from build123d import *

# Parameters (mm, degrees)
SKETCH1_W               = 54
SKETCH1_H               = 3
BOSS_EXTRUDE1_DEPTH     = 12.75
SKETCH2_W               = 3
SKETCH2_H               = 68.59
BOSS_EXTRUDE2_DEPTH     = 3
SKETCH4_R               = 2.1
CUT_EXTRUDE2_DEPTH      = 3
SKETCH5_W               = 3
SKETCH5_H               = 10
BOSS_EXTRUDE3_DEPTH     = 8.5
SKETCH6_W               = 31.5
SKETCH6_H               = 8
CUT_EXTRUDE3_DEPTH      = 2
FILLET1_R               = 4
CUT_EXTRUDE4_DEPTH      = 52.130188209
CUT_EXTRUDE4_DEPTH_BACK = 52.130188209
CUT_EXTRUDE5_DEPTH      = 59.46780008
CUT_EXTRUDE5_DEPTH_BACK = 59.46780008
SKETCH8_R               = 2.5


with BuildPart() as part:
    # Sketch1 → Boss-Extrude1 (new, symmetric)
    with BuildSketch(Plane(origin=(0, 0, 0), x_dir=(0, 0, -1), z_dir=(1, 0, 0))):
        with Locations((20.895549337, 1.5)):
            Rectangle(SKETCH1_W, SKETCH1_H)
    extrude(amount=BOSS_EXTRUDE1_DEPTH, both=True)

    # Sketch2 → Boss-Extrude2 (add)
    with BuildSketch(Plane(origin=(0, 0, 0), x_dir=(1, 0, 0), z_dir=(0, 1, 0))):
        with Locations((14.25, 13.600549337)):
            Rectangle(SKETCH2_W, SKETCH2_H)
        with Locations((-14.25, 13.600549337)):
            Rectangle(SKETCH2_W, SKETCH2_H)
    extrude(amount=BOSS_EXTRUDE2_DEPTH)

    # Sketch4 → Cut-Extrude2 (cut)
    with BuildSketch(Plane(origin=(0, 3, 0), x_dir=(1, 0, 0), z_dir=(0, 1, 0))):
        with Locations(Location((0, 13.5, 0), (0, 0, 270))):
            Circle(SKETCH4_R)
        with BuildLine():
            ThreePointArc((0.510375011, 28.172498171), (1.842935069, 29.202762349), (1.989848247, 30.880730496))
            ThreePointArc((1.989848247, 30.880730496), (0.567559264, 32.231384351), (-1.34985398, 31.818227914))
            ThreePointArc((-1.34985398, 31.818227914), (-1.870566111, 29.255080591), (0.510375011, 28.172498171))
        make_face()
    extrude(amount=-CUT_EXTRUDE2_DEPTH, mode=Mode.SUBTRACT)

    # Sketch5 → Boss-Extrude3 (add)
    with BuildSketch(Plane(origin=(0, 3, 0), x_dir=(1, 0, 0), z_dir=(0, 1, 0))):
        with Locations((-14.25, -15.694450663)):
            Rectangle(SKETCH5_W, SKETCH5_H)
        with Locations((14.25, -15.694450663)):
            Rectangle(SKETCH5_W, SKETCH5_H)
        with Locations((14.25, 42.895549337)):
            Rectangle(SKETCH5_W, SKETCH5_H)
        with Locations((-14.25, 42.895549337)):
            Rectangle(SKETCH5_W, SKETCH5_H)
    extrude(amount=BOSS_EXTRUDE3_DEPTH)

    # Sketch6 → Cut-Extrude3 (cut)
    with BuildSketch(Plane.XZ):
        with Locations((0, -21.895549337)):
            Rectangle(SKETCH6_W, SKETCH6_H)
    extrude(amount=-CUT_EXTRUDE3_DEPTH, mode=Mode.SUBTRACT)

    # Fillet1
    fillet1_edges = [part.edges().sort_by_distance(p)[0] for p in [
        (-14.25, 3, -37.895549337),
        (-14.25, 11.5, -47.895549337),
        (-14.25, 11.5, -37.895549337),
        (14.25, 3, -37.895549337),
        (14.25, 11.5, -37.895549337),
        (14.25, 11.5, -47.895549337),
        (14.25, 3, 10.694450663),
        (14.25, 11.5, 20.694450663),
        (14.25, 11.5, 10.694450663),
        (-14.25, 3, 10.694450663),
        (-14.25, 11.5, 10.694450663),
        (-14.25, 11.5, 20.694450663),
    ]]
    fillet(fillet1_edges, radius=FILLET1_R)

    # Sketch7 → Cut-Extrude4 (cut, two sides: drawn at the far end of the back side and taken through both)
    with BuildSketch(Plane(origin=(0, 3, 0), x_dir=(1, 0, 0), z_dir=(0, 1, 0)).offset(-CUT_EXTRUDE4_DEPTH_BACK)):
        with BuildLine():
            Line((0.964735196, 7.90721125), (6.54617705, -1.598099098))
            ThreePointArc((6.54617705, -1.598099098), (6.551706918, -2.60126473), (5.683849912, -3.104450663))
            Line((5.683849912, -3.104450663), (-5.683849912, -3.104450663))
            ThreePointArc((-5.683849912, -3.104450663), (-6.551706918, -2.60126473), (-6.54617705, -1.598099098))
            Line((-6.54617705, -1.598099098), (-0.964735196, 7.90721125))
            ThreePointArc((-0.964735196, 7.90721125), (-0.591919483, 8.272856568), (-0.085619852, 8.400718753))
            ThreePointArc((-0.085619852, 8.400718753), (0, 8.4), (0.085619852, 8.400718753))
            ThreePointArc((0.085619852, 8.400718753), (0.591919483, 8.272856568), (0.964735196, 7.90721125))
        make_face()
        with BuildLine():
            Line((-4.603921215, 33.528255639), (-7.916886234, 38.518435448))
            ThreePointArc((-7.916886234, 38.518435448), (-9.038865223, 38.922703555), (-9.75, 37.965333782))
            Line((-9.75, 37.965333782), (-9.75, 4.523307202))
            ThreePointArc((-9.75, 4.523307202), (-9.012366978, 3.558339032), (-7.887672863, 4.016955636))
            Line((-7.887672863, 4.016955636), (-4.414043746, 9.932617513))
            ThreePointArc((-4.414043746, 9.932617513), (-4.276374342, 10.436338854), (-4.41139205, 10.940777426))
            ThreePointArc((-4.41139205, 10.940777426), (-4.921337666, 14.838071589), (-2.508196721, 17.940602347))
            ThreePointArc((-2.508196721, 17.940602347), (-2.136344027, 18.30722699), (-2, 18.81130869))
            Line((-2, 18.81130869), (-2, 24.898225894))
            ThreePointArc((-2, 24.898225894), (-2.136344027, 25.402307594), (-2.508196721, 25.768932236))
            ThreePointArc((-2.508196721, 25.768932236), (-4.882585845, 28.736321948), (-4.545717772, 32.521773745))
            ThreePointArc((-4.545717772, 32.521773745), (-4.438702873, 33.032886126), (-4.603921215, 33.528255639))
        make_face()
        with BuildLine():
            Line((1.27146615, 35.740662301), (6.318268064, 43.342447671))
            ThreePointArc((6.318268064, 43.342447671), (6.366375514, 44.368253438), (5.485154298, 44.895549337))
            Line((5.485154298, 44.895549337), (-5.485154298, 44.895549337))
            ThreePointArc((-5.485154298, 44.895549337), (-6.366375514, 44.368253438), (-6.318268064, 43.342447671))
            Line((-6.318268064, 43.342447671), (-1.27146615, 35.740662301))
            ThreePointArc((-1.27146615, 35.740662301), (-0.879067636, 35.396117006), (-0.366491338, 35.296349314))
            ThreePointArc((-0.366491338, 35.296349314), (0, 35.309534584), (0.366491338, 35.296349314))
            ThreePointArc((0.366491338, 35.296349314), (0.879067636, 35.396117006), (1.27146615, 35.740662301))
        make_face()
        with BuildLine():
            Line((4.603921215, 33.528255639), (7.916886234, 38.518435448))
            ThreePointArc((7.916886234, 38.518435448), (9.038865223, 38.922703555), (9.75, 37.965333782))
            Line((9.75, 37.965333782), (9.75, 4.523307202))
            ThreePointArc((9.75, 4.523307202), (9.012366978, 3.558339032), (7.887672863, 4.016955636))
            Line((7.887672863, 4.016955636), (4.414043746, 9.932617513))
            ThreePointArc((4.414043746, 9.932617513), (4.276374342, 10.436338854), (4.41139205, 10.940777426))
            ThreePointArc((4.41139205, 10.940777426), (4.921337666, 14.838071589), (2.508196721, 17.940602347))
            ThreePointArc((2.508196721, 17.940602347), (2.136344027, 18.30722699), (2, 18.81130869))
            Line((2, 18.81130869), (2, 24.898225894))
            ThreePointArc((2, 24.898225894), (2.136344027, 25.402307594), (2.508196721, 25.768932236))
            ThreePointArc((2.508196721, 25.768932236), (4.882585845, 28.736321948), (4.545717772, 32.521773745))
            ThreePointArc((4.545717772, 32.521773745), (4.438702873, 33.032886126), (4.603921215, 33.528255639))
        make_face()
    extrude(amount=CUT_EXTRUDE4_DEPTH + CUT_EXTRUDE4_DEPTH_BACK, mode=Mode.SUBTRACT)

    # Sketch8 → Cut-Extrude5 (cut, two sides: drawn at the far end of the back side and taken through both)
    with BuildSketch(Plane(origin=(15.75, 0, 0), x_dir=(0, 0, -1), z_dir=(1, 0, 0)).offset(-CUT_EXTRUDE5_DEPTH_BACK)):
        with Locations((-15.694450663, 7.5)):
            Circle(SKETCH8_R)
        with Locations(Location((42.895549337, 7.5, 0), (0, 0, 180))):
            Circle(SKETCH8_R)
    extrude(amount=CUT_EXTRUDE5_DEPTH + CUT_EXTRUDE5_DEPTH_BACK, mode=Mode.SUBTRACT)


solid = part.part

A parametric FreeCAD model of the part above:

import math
import FreeCAD as App
import Part
import Sketcher

V = App.Vector


def edges_at(feature, points):
    """Names of the edges that pass closest to the given points."""
    edges = feature.Shape.Edges
    near = lambda p: min(range(len(edges)), key=lambda i: edges[i].distToShape(Part.Vertex(*p))[0])
    return sorted({f"Edge{near(p) + 1}" for p in points})


def add_polygon(sketch, points):
    """Adds a closed chain of lines whose ends are joined by coincident constraints."""
    first, n = sketch.GeometryCount, len(points)
    for a, b in zip(points, points[1:] + points[:1]):
        sketch.addGeometry(Part.LineSegment(App.Vector(*a, 0), App.Vector(*b, 0)), False)
    for i in range(n):
        sketch.addConstraint(Sketcher.Constraint("Coincident", first + i, 2, first + (i + 1) % n, 1))

doc = App.newDocument("Part")
body = doc.addObject("PartDesign::Body", "Body")

sketch1 = body.newObject("Sketcher::SketchObject", "Sketch")
sketch1.AttachmentSupport = (doc.getObject("YZ_Plane"), [""])
sketch1.MapMode = "FlatFace"
add_polygon(sketch1, [(3, 6.104451), (0, 6.104451), (0, -47.895549), (3, -47.895549)])
sketch1.addConstraint([
    Sketcher.Constraint("Horizontal", 0),
    Sketcher.Constraint("Vertical", 1),
    Sketcher.Constraint("Horizontal", 2),
    Sketcher.Constraint("Vertical", 3),
    Sketcher.Constraint("PointOnObject", 0, 2, -2),
    Sketcher.Constraint("DistanceX", 0, 2, 0, 1, 3.0),
    Sketcher.Constraint("DistanceY", 1, 2, 1, 1, 54.0),
    Sketcher.Constraint("DistanceY", -1, 1, 0, 2, 6.104451),
])
pad1 = body.newObject("PartDesign::Pad", "Pad")
pad1.Profile = sketch1
pad1.Length = 25.5
pad1.Midplane = True

sketch2 = body.newObject("Sketcher::SketchObject", "Sketch001")
sketch2.AttachmentSupport = (doc.getObject("XZ_Plane"), [""])
sketch2.MapMode = "FlatFace"
add_polygon(sketch2, [(12.75, -47.895549), (12.75, 20.694451), (15.75, 20.694451), (15.75, -47.895549)])
add_polygon(sketch2, [(-15.75, -47.895549), (-15.75, 20.694451), (-12.75, 20.694451), (-12.75, -47.895549)])
sketch2.addConstraint([
    Sketcher.Constraint("Vertical", 0),
    Sketcher.Constraint("Horizontal", 1),
    Sketcher.Constraint("Vertical", 2),
    Sketcher.Constraint("Horizontal", 3),
    Sketcher.Constraint("Vertical", 4),
    Sketcher.Constraint("Horizontal", 5),
    Sketcher.Constraint("Vertical", 6),
    Sketcher.Constraint("Horizontal", 7),
    Sketcher.Constraint("Symmetric", 1, 2, 4, 2, -2),
    Sketcher.Constraint("Symmetric", 3, 2, 6, 2, -2),
    Sketcher.Constraint("DistanceX", 1, 1, 1, 2, 3.0),
    Sketcher.Constraint("DistanceY", 0, 1, 0, 2, 68.59),
    Sketcher.Constraint("DistanceX", 4, 2, 0, 2, 28.5),
    Sketcher.Constraint("DistanceY", -1, 1, 0, 2, 20.694451),
])
pad2 = body.newObject("PartDesign::Pad", "Pad001")
pad2.Profile = sketch2
pad2.Length = 3
pad2.Reversed = True

sketch3 = body.newObject("Sketcher::SketchObject", "Sketch002")
sketch3.AttachmentSupport = (doc.getObject("XZ_Plane"), [""])
sketch3.MapMode = "FlatFace"
sketch3.AttachmentOffset = App.Placement(V(0, 0, -3), App.Rotation())
sketch3.addGeometry([
    Part.Circle(V(0, -13.5, 0), V(0, 0, 1), 2.1),
    Part.ArcOfCircle(Part.Circle(V(0, -30.209535, 0), V(0, 0, 1), 2.1), math.radians(-18.63977), math.radians(75.93422)),
    Part.ArcOfCircle(Part.Circle(V(0, -30.209535, 0), V(0, 0, 1), 2.1), math.radians(-130), math.radians(-18.63977)),
    Part.ArcOfCircle(Part.Circle(V(0, -30.209535, 0), V(0, 0, 1), 2.1), math.radians(75.934219), math.radians(230)),
], False)
sketch3.addConstraint([
    Sketcher.Constraint("Tangent", 1, 1, 2, 2),
    Sketcher.Constraint("Tangent", 2, 1, 3, 2),
    Sketcher.Constraint("Tangent", 3, 1, 1, 2),
    Sketcher.Constraint("Equal", 0, 1),
    Sketcher.Constraint("PointOnObject", 0, 3, -2),
    Sketcher.Constraint("PointOnObject", 1, 3, -2),
    Sketcher.Constraint("Diameter", 0, 4.2),
    Sketcher.Constraint("DistanceY", 0, 3, -1, 1, 13.5),
    Sketcher.Constraint("DistanceY", 3, 1, -1, 1, 28.172498),
    Sketcher.Constraint("DistanceX", -1, 1, 1, 1, 1.989848),
    Sketcher.Constraint("DistanceY", 1, 1, -1, 1, 30.88073),
    Sketcher.Constraint("DistanceX", 2, 1, 3, 1, 1.860229),
])
pocket1 = body.newObject("PartDesign::Pocket", "Pocket")
pocket1.Profile = sketch3
pocket1.Length = 3
pocket1.Reversed = True

sketch4 = body.newObject("Sketcher::SketchObject", "Sketch003")
sketch4.AttachmentSupport = (doc.getObject("XZ_Plane"), [""])
sketch4.MapMode = "FlatFace"
sketch4.AttachmentOffset = App.Placement(V(0, 0, -3), App.Rotation())
add_polygon(sketch4, [(-15.75, 10.694451), (-15.75, 20.694451), (-12.75, 20.694451), (-12.75, 10.694451)])
add_polygon(sketch4, [(12.75, 10.694451), (12.75, 20.694451), (15.75, 20.694451), (15.75, 10.694451)])
add_polygon(sketch4, [(12.75, -47.895549), (12.75, -37.895549), (15.75, -37.895549), (15.75, -47.895549)])
add_polygon(sketch4, [(-15.75, -47.895549), (-15.75, -37.895549), (-12.75, -37.895549), (-12.75, -47.895549)])
sketch4.addConstraint([
    Sketcher.Constraint("Vertical", 0),
    Sketcher.Constraint("Horizontal", 1),
    Sketcher.Constraint("Vertical", 2),
    Sketcher.Constraint("Horizontal", 3),
    Sketcher.Constraint("Vertical", 4),
    Sketcher.Constraint("Horizontal", 5),
    Sketcher.Constraint("Vertical", 6),
    Sketcher.Constraint("Horizontal", 7),
    Sketcher.Constraint("Vertical", 8),
    Sketcher.Constraint("Horizontal", 9),
    Sketcher.Constraint("Vertical", 10),
    Sketcher.Constraint("Horizontal", 11),
    Sketcher.Constraint("Vertical", 12),
    Sketcher.Constraint("Horizontal", 13),
    Sketcher.Constraint("Vertical", 14),
    Sketcher.Constraint("Horizontal", 15),
    Sketcher.Constraint("Symmetric", 1, 2, 4, 2, -2),
    Sketcher.Constraint("Symmetric", 3, 2, 6, 2, -2),
    Sketcher.Constraint("Symmetric", 9, 2, 12, 2, -2),
    Sketcher.Constraint("Symmetric", 11, 2, 14, 2, -2),
    Sketcher.Constraint("Vertical", 7, 2, 8, 2),
    Sketcher.Constraint("Vertical", 6, 2, 9, 2),
    Sketcher.Constraint("Equal", 6, 8),
    Sketcher.Constraint("DistanceX", 1, 1, 1, 2, 3.0),
    Sketcher.Constraint("DistanceY", 0, 1, 0, 2, 10.0),
    Sketcher.Constraint("DistanceX", 1, 2, 4, 2, 25.5),
    Sketcher.Constraint("DistanceY", 8, 2, 7, 2, 48.59),
    Sketcher.Constraint("DistanceY", -1, 1, 0, 2, 20.694451),
])
pad3 = body.newObject("PartDesign::Pad", "Pad002")
pad3.Profile = sketch4
pad3.Length = 8.5
pad3.Reversed = True

sketch5 = body.newObject("Sketcher::SketchObject", "Sketch004")
sketch5.AttachmentSupport = (doc.getObject("XZ_Plane"), [""])
sketch5.MapMode = "FlatFace"
add_polygon(sketch5, [(-15.75, -17.895549), (-15.75, -25.895549), (15.75, -25.895549), (15.75, -17.895549)])
sketch5.addConstraint([
    Sketcher.Constraint("Vertical", 0),
    Sketcher.Constraint("Horizontal", 1),
    Sketcher.Constraint("Vertical", 2),
    Sketcher.Constraint("Horizontal", 3),
    Sketcher.Constraint("DistanceY", 0, 2, 0, 1, 8.0),
    Sketcher.Constraint("DistanceX", 1, 1, 1, 2, 31.5),
    Sketcher.Constraint("DistanceX", 0, 2, -1, 1, 15.75),
    Sketcher.Constraint("DistanceY", 0, 2, -1, 1, 25.895549),
])
pocket2 = body.newObject("PartDesign::Pocket", "Pocket001")
pocket2.Profile = sketch5
pocket2.Length = 2
doc.recompute()

fillet = body.newObject("PartDesign::Fillet", "Fillet")
fillet.Base = (pocket2, edges_at(pocket2, [
    (-14.25, 3, -37.896),
    (-14.25, 11.5, -47.896),
    (-14.25, 11.5, -37.896),
    (14.25, 3, -37.896),
    (14.25, 11.5, -37.896),
    (14.25, 11.5, -47.896),
    (14.25, 3, 10.694),
    (14.25, 11.5, 20.694),
    (14.25, 11.5, 10.694),
    (-14.25, 3, 10.694),
    (-14.25, 11.5, 10.694),
    (-14.25, 11.5, 20.694),
]))
fillet.Radius = 4

sketch6 = body.newObject("Sketcher::SketchObject", "Sketch005")
sketch6.AttachmentSupport = (doc.getObject("XZ_Plane"), [""])
sketch6.MapMode = "FlatFace"
sketch6.AttachmentOffset = App.Placement(V(0, 0, -3), App.Rotation())
sketch6.addGeometry([
    Part.LineSegment(V(6.546177, 1.598099, 0), V(0.964735, -7.907211, 0)),
    Part.ArcOfCircle(Part.Circle(V(0.102408, -7.40086, 0), V(0, 0, 1), 1), math.radians(-90.961938), math.radians(-30.421114)),
    Part.ArcOfCircle(Part.Circle(V(0, -13.499997, 0), V(0, 0, 1), 5.099997), math.radians(89.038061), math.radians(90.961939)),
    Part.ArcOfCircle(Part.Circle(V(-0.102408, -7.40086, 0), V(0, 0, 1), 1), math.radians(-149.578886), math.radians(-89.038062)),
    Part.LineSegment(V(-0.964735, -7.907211, 0), V(-6.546177, 1.598099, 0)),
    Part.ArcOfCircle(Part.Circle(V(-5.68385, 2.104451, 0), V(0, 0, 1), 1), math.radians(90), math.radians(210.421113)),
    Part.LineSegment(V(-5.68385, 3.104451, 0), V(5.68385, 3.104451, 0)),
    Part.ArcOfCircle(Part.Circle(V(5.68385, 2.104451, 0), V(0, 0, 1), 1), math.radians(-30.421113), math.radians(90)),
    Part.LineSegment(V(-4.603921, -33.528256, 0), V(-7.916886, -38.518435, 0)),
    Part.ArcOfCircle(Part.Circle(V(-8.75, -37.965334, 0), V(0, 0, 1), 1), math.radians(180), math.radians(326.419938)),
    Part.LineSegment(V(-9.75, -37.965334, 0), V(-9.75, -4.523307, 0)),
    Part.ArcOfCircle(Part.Circle(V(-8.75, -4.523307, 0), V(0, 0, 1), 1), math.radians(30.421113), math.radians(180)),
    Part.LineSegment(V(-7.887673, -4.016956, 0), V(-4.414044, -9.932618, 0)),
    Part.ArcOfCircle(Part.Circle(V(-5.276371, -10.438969, 0), V(0, 0, 1), 1), math.radians(-30.119712), math.radians(30.421114)),
    Part.ArcOfCircle(Part.Circle(V(0, -13.5, 0), V(0, 0, 1), 5.1), math.radians(149.880288), math.radians(240.540825)),
    Part.ArcOfCircle(Part.Circle(V(-3, -18.811309, 0), V(0, 0, 1), 1), math.radians(0), math.radians(60.540825)),
    Part.LineSegment(V(-2, -18.811309, 0), V(-2, -24.898226, 0)),
    Part.ArcOfCircle(Part.Circle(V(-3, -24.898226, 0), V(0, 0, 1), 1), math.radians(-60.540825), math.radians(0)),
    Part.ArcOfCircle(Part.Circle(V(0, -30.209535, 0), V(0, 0, 1), 5.1), math.radians(119.459175), math.radians(206.960764)),
    Part.ArcOfCircle(Part.Circle(V(-5.437035, -32.975154, 0), V(0, 0, 1), 1), math.radians(-33.580062), math.radians(26.960764)),
    Part.LineSegment(V(1.271466, -35.740662, 0), V(6.318268, -43.342448, 0)),
    Part.ArcOfCircle(Part.Circle(V(5.485154, -43.895549, 0), V(0, 0, 1), 1), math.radians(-90), math.radians(33.580061)),
    Part.LineSegment(V(5.485154, -44.895549, 0), V(-5.485154, -44.895549, 0)),
    Part.ArcOfCircle(Part.Circle(V(-5.485154, -43.895549, 0), V(0, 0, 1), 1), math.radians(146.419939), math.radians(270)),
    Part.LineSegment(V(-6.318268, -43.342448, 0), V(-1.271466, -35.740662, 0)),
    Part.ArcOfCircle(Part.Circle(V(-0.438352, -36.293764, 0), V(0, 0, 1), 1), math.radians(85.879113), math.radians(146.419938)),
    Part.ArcOfCircle(Part.Circle(V(0, -30.209535, 0), V(0, 0, 1), 5.1), math.radians(-94.120887), math.radians(-85.879113)),
    Part.ArcOfCircle(Part.Circle(V(0.438352, -36.293764, 0), V(0, 0, 1), 1), math.radians(33.580062), math.radians(94.120887)),
    Part.LineSegment(V(7.916886, -38.518435, 0), V(4.603921, -33.528256, 0)),
    Part.ArcOfCircle(Part.Circle(V(5.437035, -32.975154, 0), V(0, 0, 1), 1), math.radians(153.039236), math.radians(213.580062)),
    Part.ArcOfCircle(Part.Circle(V(0, -30.209535, 0), V(0, 0, 1), 5.1), math.radians(-26.960764), math.radians(60.540825)),
    Part.ArcOfCircle(Part.Circle(V(3, -24.898226, 0), V(0, 0, 1), 1), math.radians(180), math.radians(240.540825)),
    Part.LineSegment(V(2, -24.898226, 0), V(2, -18.811309, 0)),
    Part.ArcOfCircle(Part.Circle(V(3, -18.811309, 0), V(0, 0, 1), 1), math.radians(119.459175), math.radians(180)),
    Part.ArcOfCircle(Part.Circle(V(0, -13.5, 0), V(0, 0, 1), 5.1), math.radians(-60.540825), math.radians(30.119712)),
    Part.ArcOfCircle(Part.Circle(V(5.276371, -10.438969, 0), V(0, 0, 1), 1), math.radians(149.578886), math.radians(210.119712)),
    Part.LineSegment(V(4.414044, -9.932618, 0), V(7.887673, -4.016956, 0)),
    Part.ArcOfCircle(Part.Circle(V(8.75, -4.523307, 0), V(0, 0, 1), 1), math.radians(0), math.radians(149.578887)),
    Part.LineSegment(V(9.75, -4.523307, 0), V(9.75, -37.965334, 0)),
    Part.ArcOfCircle(Part.Circle(V(8.75, -37.965334, 0), V(0, 0, 1), 1), math.radians(-146.419938), math.radians(0)),
], False)
sketch6.addConstraint([
    Sketcher.Constraint("Tangent", 0, 2, 1, 2),
    Sketcher.Constraint("Tangent", 1, 1, 2, 1),
    Sketcher.Constraint("Tangent", 2, 2, 3, 2),
    Sketcher.Constraint("Tangent", 3, 1, 4, 1),
    Sketcher.Constraint("Tangent", 4, 2, 5, 2),
    Sketcher.Constraint("Tangent", 5, 1, 6, 1),
    Sketcher.Constraint("Tangent", 6, 2, 7, 2),
    Sketcher.Constraint("Tangent", 7, 1, 0, 1),
    Sketcher.Constraint("Tangent", 8, 2, 9, 2),
    Sketcher.Constraint("Tangent", 9, 1, 10, 1),
    Sketcher.Constraint("Tangent", 10, 2, 11, 2),
    Sketcher.Constraint("Tangent", 11, 1, 12, 1),
    Sketcher.Constraint("Tangent", 12, 2, 13, 2),
    Sketcher.Constraint("Tangent", 13, 1, 14, 1),
    Sketcher.Constraint("Tangent", 14, 2, 15, 2),
    Sketcher.Constraint("Tangent", 15, 1, 16, 1),
    Sketcher.Constraint("Tangent", 16, 2, 17, 2),
    Sketcher.Constraint("Tangent", 17, 1, 18, 1),
    Sketcher.Constraint("Tangent", 18, 2, 19, 2),
    Sketcher.Constraint("Tangent", 19, 1, 8, 1),
    Sketcher.Constraint("Tangent", 20, 2, 21, 2),
    Sketcher.Constraint("Tangent", 21, 1, 22, 1),
    Sketcher.Constraint("Tangent", 22, 2, 23, 2),
    Sketcher.Constraint("Tangent", 23, 1, 24, 1),
    Sketcher.Constraint("Tangent", 24, 2, 25, 2),
    Sketcher.Constraint("Tangent", 25, 1, 26, 1),
    Sketcher.Constraint("Tangent", 26, 2, 27, 2),
    Sketcher.Constraint("Tangent", 27, 1, 20, 1),
    Sketcher.Constraint("Tangent", 28, 2, 29, 2),
    Sketcher.Constraint("Tangent", 29, 1, 30, 1),
    Sketcher.Constraint("Tangent", 30, 2, 31, 2),
    Sketcher.Constraint("Tangent", 31, 1, 32, 1),
    Sketcher.Constraint("Tangent", 32, 2, 33, 2),
    Sketcher.Constraint("Tangent", 33, 1, 34, 1),
    Sketcher.Constraint("Tangent", 34, 2, 35, 2),
    Sketcher.Constraint("Tangent", 35, 1, 36, 1),
    Sketcher.Constraint("Tangent", 36, 2, 37, 2),
    Sketcher.Constraint("Tangent", 37, 1, 38, 1),
    Sketcher.Constraint("Tangent", 38, 2, 39, 2),
    Sketcher.Constraint("Tangent", 39, 1, 28, 1),
    Sketcher.Constraint("Horizontal", 6),
    Sketcher.Constraint("Vertical", 10),
    Sketcher.Constraint("Vertical", 16),
    Sketcher.Constraint("Horizontal", 22),
    Sketcher.Constraint("Vertical", 32),
    Sketcher.Constraint("Vertical", 38),
    Sketcher.Constraint("Coincident", 14, 3, 2, 3),
    Sketcher.Constraint("Coincident", 26, 3, 18, 3),
    Sketcher.Constraint("Coincident", 30, 3, 18, 3),
    Sketcher.Constraint("Coincident", 34, 3, 2, 3),
    Sketcher.Constraint("Equal", 1, 3),
    Sketcher.Constraint("Equal", 3, 5),
    Sketcher.Constraint("Equal", 5, 7),
    Sketcher.Constraint("Equal", 7, 9),
    Sketcher.Constraint("Equal", 9, 11),
    Sketcher.Constraint("Equal", 11, 13),
    Sketcher.Constraint("Equal", 13, 15),
    Sketcher.Constraint("Equal", 15, 17),
    Sketcher.Constraint("Equal", 14, 18),
    Sketcher.Constraint("Equal", 17, 19),
    Sketcher.Constraint("Equal", 19, 21),
    Sketcher.Constraint("Equal", 21, 23),
    Sketcher.Constraint("Equal", 23, 25),
    Sketcher.Constraint("Equal", 18, 26),
    Sketcher.Constraint("Equal", 25, 27),
    Sketcher.Constraint("Equal", 27, 29),
    Sketcher.Constraint("Equal", 26, 30),
    Sketcher.Constraint("Equal", 29, 31),
    Sketcher.Constraint("Equal", 31, 33),
    Sketcher.Constraint("Equal", 30, 34),
    Sketcher.Constraint("Equal", 33, 35),
    Sketcher.Constraint("Equal", 35, 37),
    Sketcher.Constraint("Equal", 37, 39),
    Sketcher.Constraint("Symmetric", 1, 3, 3, 3, -2),
    Sketcher.Constraint("Symmetric", 25, 3, 27, 3, -2),
    Sketcher.Constraint("Symmetric", 11, 3, 37, 3, -2),
    Sketcher.Constraint("Symmetric", 19, 1, 28, 2, -2),
    Sketcher.Constraint("Parallel", 4, 12),
    Sketcher.Constraint("Parallel", 8, 24),
    Sketcher.Constraint("Parallel", 20, 28),
    Sketcher.Constraint("Parallel", 0, 36),
    Sketcher.Constraint("Horizontal", 17, 3, 31, 3),
    Sketcher.Constraint("Horizontal", 13, 3, 35, 3),
    Sketcher.Constraint("Radius", 1, 1.0),
    Sketcher.Constraint("Radius", 14, 5.1),
    Sketcher.Constraint("DistanceX", 15, 3, -1, 1, 3.0),
    Sketcher.Constraint("DistanceY", 14, 3, -1, 1, 13.5),
    Sketcher.Constraint("DistanceX", 9, 3, -1, 1, 8.75),
    Sketcher.Constraint("DistanceX", 6, 1, 6, 2, 11.3677),
    Sketcher.Constraint("Radius", 2, 5.099997),
    Sketcher.Constraint("DistanceX", 22, 2, 22, 1, 10.970309),
    Sketcher.Constraint("DistanceY", -1, 1, 4, 2, 1.598099),
    Sketcher.Constraint("Distance", 0, 11.022859),
    Sketcher.Constraint("DistanceY", 10, 1, 10, 2, 33.442027),
    Sketcher.Constraint("DistanceY", 16, 2, 16, 1, 6.086917),
    Sketcher.Constraint("DistanceX", 13, 3, -1, 1, 5.276371),
    Sketcher.Constraint("DistanceY", 21, 3, -1, 1, 43.895549),
    Sketcher.Constraint("DistanceX", 19, 1, -1, 1, 4.603921),
])
pocket3 = body.newObject("PartDesign::Pocket", "Pocket002")
pocket3.Profile = sketch6
pocket3.Type = "ThroughAll"
pocket3.Midplane = True

sketch7 = body.newObject("Sketcher::SketchObject", "Sketch006")
sketch7.AttachmentSupport = (doc.getObject("YZ_Plane"), [""])
sketch7.MapMode = "FlatFace"
sketch7.AttachmentOffset = App.Placement(V(0, 0, 15.75), App.Rotation())
sketch7.addGeometry([
    Part.Circle(V(7.5, 15.694451, 0), V(0, 0, 1), 2.5),
    Part.Circle(V(7.5, -42.895549, 0), V(0, 0, 1), 2.5),
], False)
sketch7.addConstraint([
    Sketcher.Constraint("Equal", 0, 1),
    Sketcher.Constraint("Vertical", 0, 3, 1, 3),
    Sketcher.Constraint("Diameter", 0, 5.0),
    Sketcher.Constraint("DistanceX", -1, 1, 0, 3, 7.5),
    Sketcher.Constraint("DistanceY", 1, 3, 0, 3, 58.59),
    Sketcher.Constraint("DistanceY", -1, 1, 0, 3, 15.694451),
])
pocket4 = body.newObject("PartDesign::Pocket", "Pocket003")
pocket4.Profile = sketch7
pocket4.Type = "ThroughAll"
pocket4.Midplane = True

doc.recompute()
